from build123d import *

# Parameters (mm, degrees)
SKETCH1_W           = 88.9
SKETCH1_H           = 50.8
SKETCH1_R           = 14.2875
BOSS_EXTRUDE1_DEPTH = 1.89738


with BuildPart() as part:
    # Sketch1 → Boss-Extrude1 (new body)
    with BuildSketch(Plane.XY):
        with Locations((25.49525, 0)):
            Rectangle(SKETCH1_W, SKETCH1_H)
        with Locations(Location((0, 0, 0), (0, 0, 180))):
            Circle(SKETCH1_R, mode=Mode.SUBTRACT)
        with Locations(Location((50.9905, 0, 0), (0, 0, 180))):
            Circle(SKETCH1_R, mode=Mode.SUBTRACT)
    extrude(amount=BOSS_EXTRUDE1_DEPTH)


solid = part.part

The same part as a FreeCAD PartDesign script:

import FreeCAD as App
import Part
import Sketcher
Q = App.Units.Quantity


def add_polygon(sketch, points):
    """Adds a closed chain of lines whose ends are joined by coincident constraints."""
    first, n = sketch.GeometryCount, len(points)
    for a, b in zip(points, points[1:] + points[:1]):
        sketch.addGeometry(Part.LineSegment(App.Vector(*a, 0), App.Vector(*b, 0)), False)
    for i in range(n):
        sketch.addConstraint(Sketcher.Constraint("Coincident", first + i, 2, first + (i + 1) % n, 1))

doc = App.newDocument("Part")
body = doc.addObject("PartDesign::Body", "Body")

# Sketch on XY plane
sketch1 = body.newObject("Sketcher::SketchObject", "Sketch")
sketch1.AttachmentSupport = (doc.getObject("XY_Plane"), [""])
sketch1.MapMode = "FlatFace"
add_polygon(sketch1, [(-18.95475, 25.4), (-18.95475, -25.4), (69.94525, -25.4), (69.94525, 25.4)])  # lines 0-3
sketch1.addGeometry(Part.Circle(App.Vector(0, 0, 0), App.Vector(0, 0, 1), 14.2875), False)  # 4
sketch1.addGeometry(Part.Circle(App.Vector(50.9905, 0, 0), App.Vector(0, 0, 1), 14.2875), False)  # 5
sketch1.addConstraint(Sketcher.Constraint("Vertical", 0))
sketch1.addConstraint(Sketcher.Constraint("Horizontal", 1))
sketch1.addConstraint(Sketcher.Constraint("Vertical", 2))
sketch1.addConstraint(Sketcher.Constraint("Horizontal", 3))
sketch1.addConstraint(Sketcher.Constraint("Coincident", 4, 3, -1, 1))
sketch1.addConstraint(Sketcher.Constraint("Equal", 4, 5))
sketch1.addConstraint(Sketcher.Constraint("PointOnObject", 5, 3, -1))
sketch1.addConstraint(Sketcher.Constraint("DistanceY", 0, 2, 0, 1, Q("2 in")))
sketch1.addConstraint(Sketcher.Constraint("Diameter", 4, Q("1.125 in")))
sketch1.addConstraint(Sketcher.Constraint("DistanceX", 1, 1, 1, 2, Q("3.5 in")))
sketch1.addConstraint(Sketcher.Constraint("DistanceY", 0, 2, -1, 1, Q("1 in")))
sketch1.addConstraint(Sketcher.Constraint("DistanceX", -1, 1, 5, 3, Q("2.0075 in")))
sketch1.addConstraint(Sketcher.Constraint("DistanceX", 0, 2, -1, 1, 18.95475))
pad1 = body.newObject("PartDesign::Pad", "Pad")
pad1.Profile = sketch1
pad1.Length = Q("0.0747 in")

doc.recompute()
